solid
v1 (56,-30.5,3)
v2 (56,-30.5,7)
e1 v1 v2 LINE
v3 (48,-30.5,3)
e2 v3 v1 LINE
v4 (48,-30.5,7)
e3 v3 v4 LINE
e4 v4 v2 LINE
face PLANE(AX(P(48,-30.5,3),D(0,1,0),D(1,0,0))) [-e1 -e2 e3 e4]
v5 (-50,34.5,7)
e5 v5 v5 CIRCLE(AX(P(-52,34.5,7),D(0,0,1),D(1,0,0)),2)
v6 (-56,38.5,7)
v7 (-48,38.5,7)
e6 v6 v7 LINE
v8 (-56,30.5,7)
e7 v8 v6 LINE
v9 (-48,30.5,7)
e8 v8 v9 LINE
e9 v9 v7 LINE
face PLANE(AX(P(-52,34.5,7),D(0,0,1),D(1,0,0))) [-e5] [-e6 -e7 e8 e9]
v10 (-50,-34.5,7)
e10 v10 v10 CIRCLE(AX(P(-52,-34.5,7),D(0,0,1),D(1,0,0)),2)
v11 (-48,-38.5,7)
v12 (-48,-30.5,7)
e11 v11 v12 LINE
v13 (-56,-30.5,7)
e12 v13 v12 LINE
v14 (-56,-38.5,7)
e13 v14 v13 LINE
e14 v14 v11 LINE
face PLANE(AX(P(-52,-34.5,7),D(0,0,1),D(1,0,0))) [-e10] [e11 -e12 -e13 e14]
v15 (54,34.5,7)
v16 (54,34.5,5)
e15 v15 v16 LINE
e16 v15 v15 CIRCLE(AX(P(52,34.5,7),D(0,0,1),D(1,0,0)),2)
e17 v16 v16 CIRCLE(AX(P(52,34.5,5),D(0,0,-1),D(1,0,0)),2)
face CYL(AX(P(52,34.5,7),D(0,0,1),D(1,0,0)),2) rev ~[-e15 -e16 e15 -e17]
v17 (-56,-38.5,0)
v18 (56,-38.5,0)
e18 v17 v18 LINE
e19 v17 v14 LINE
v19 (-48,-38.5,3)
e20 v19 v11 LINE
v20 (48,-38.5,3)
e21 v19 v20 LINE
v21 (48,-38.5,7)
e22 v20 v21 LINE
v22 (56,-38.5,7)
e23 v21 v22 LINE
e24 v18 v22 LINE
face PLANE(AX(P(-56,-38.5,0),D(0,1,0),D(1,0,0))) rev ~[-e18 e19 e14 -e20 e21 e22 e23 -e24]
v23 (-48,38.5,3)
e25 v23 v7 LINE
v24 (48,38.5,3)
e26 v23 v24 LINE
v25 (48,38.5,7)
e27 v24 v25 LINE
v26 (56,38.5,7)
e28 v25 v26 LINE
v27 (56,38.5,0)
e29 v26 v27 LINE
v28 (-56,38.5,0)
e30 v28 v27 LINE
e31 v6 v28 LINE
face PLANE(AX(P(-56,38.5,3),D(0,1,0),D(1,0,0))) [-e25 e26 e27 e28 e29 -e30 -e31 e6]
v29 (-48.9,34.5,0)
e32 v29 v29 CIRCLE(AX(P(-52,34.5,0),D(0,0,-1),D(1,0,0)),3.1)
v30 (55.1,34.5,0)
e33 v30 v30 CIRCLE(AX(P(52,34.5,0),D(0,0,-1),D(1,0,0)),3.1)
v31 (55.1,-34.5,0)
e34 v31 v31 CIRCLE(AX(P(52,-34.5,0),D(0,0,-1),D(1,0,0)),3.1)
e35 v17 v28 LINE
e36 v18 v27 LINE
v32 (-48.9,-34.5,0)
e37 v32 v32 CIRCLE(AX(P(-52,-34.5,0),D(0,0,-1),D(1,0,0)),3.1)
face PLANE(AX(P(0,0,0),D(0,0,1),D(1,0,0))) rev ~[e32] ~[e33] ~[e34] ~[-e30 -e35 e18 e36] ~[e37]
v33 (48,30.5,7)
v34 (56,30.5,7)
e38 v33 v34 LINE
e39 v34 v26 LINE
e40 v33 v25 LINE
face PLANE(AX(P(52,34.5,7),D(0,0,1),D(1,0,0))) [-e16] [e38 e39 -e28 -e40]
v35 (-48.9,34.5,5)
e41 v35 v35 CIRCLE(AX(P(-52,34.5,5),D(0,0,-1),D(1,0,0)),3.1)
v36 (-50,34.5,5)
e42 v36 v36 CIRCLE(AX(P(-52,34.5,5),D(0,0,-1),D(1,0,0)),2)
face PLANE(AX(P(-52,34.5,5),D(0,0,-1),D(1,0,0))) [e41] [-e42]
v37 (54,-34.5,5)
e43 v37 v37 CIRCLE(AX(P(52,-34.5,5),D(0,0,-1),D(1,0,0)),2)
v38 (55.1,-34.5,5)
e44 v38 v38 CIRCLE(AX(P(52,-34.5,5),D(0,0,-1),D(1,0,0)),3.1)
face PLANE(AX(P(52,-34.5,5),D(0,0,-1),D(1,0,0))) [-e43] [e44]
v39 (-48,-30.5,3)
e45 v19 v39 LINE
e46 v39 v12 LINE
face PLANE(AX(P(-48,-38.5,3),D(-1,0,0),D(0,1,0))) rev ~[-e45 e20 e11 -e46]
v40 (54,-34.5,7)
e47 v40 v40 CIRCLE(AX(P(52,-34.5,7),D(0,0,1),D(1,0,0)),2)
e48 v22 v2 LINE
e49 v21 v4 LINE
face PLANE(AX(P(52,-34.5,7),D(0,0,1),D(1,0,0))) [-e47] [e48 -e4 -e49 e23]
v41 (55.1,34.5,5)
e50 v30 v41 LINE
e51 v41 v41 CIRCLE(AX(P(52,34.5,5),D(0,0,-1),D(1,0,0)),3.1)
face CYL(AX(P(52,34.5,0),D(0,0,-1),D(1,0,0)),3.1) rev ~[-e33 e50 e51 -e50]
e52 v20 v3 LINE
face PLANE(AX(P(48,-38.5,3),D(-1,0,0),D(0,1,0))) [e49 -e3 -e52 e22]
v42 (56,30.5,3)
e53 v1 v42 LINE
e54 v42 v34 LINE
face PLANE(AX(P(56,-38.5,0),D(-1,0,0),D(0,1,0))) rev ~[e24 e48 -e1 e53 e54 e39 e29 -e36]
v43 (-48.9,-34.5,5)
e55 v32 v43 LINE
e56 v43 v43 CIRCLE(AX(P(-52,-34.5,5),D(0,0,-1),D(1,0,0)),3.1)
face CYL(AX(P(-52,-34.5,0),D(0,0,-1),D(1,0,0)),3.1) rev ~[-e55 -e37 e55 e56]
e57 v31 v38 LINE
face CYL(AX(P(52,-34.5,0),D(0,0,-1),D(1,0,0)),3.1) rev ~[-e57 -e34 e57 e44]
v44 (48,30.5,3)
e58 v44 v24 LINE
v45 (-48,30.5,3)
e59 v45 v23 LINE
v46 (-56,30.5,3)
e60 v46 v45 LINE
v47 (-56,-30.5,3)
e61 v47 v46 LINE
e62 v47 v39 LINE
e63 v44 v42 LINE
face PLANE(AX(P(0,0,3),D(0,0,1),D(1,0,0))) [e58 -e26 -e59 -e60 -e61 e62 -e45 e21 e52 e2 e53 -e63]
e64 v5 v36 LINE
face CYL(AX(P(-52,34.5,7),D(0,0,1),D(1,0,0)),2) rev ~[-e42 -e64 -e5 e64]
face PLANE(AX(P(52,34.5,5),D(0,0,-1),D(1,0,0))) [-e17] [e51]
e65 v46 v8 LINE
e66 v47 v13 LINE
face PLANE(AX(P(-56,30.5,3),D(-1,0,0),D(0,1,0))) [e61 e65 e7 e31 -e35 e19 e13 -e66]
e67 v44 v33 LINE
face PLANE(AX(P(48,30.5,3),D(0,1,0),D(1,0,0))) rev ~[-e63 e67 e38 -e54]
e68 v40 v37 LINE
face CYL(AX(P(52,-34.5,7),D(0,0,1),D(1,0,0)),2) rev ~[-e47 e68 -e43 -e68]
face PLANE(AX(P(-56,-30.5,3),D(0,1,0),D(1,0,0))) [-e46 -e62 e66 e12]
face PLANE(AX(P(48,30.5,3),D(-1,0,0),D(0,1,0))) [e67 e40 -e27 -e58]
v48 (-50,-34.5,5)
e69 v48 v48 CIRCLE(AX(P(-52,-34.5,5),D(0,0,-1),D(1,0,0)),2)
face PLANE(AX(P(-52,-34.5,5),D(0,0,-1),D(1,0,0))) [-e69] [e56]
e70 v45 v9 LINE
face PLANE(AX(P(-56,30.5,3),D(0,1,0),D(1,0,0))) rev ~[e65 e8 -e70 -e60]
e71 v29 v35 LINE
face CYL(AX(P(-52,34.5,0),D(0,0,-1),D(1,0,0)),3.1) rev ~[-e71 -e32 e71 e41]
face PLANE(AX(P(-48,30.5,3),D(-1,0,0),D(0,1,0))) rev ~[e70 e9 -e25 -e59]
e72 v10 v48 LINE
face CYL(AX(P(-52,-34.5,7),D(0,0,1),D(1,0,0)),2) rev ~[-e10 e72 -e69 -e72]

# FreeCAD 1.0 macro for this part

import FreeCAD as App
import Part
import Sketcher

doc = App.newDocument("Part")
body = doc.addObject("PartDesign::Body", "Body")

# Sketch on XY plane
sketch1 = doc.addObject("Sketcher::SketchObject", "Sketch")
body.addObject(sketch1)
sketch1.AttachmentSupport = (doc.XY_Plane, [""])
sketch1.MapMode = "FlatFace"
sketch1.addGeometry(Part.LineSegment(App.Vector(-56, 38, 0), App.Vector(-56, -38, 0)), False)
sketch1.addGeometry(Part.LineSegment(App.Vector(-56, -38, 0), App.Vector(56, -38, 0)), False)
sketch1.addGeometry(Part.LineSegment(App.Vector(56, -38, 0), App.Vector(56, 38, 0)), False)
sketch1.addGeometry(Part.LineSegment(App.Vector(56, 38, 0), App.Vector(-56, 38, 0)), False)
sketch1.addConstraint(Sketcher.Constraint("Coincident", 0, 2, 1, 1))
sketch1.addConstraint(Sketcher.Constraint("Coincident", 1, 2, 2, 1))
sketch1.addConstraint(Sketcher.Constraint("Coincident", 2, 2, 3, 1))
sketch1.addConstraint(Sketcher.Constraint("Coincident", 3, 2, 0, 1))
sketch1.addConstraint(Sketcher.Constraint("Vertical", 0))
sketch1.addConstraint(Sketcher.Constraint("Horizontal", 1))
sketch1.addConstraint(Sketcher.Constraint("Vertical", 2))
sketch1.addConstraint(Sketcher.Constraint("Horizontal", 3))
sketch1.addConstraint(Sketcher.Constraint("Symmetric", 0, 2, 2, 2, -1, 1))
sketch1.addConstraint(Sketcher.Constraint("DistanceX", 1, 1, 1, 2, 112.0))
sketch1.addConstraint(Sketcher.Constraint("DistanceY", 0, 2, 0, 1, 77.0))
pad1 = doc.addObject("PartDesign::Pad", "Pad")
body.addObject(pad1)
pad1.Profile = sketch1
pad1.Length = 3

# Sketch on XY plane
sketch2 = doc.addObject("Sketcher::SketchObject", "Sketch001")
body.addObject(sketch2)
sketch2.AttachmentSupport = (doc.XY_Plane, [""])
sketch2.MapMode = "FlatFace"
sketch2.AttachmentOffset = App.Placement(App.Vector(0, 0, 3), App.Rotation())
sketch2.addGeometry(Part.LineSegment(App.Vector(-56, 38, 0), App.Vector(-56, 30, 0)), False)
sketch2.addGeometry(Part.LineSegment(App.Vector(-56, 30, 0), App.Vector(-48, 30, 0)), False)
sketch2.addGeometry(Part.LineSegment(App.Vector(-48, 30, 0), App.Vector(-48, 38, 0)), False)
sketch2.addGeometry(Part.LineSegment(App.Vector(-48, 38, 0), App.Vector(-56, 38, 0)), False)
sketch2.addGeometry(Part.LineSegment(App.Vector(-56, -30, 0), App.Vector(-56, -38, 0)), False)
sketch2.addGeometry(Part.LineSegment(App.Vector(-56, -38, 0), App.Vector(-48, -38, 0)), False)
sketch2.addGeometry(Part.LineSegment(App.Vector(-48, -38, 0), App.Vector(-48, -30, 0)), False)
sketch2.addGeometry(Part.LineSegment(App.Vector(-48, -30, 0), App.Vector(-56, -30, 0)), False)
sketch2.addGeometry(Part.LineSegment(App.Vector(48, -30, 0), App.Vector(48, -38, 0)), False)
sketch2.addGeometry(Part.LineSegment(App.Vector(48, -38, 0), App.Vector(56, -38, 0)), False)
sketch2.addGeometry(Part.LineSegment(App.Vector(56, -38, 0), App.Vector(56, -30, 0)), False)
sketch2.addGeometry(Part.LineSegment(App.Vector(56, -30, 0), App.Vector(48, -30, 0)), False)
sketch2.addGeometry(Part.LineSegment(App.Vector(48, 38, 0), App.Vector(48, 30, 0)), False)
sketch2.addGeometry(Part.LineSegment(App.Vector(48, 30, 0), App.Vector(56, 30, 0)), False)
sketch2.addGeometry(Part.LineSegment(App.Vector(56, 30, 0), App.Vector(56, 38, 0)), False)
sketch2.addGeometry(Part.LineSegment(App.Vector(56, 38, 0), App.Vector(48, 38, 0)), False)
sketch2.addConstraint(Sketcher.Constraint("Coincident", 0, 2, 1, 1))
sketch2.addConstraint(Sketcher.Constraint("Coincident", 1, 2, 2, 1))
sketch2.addConstraint(Sketcher.Constraint("Coincident", 2, 2, 3, 1))
sketch2.addConstraint(Sketcher.Constraint("Coincident", 3, 2, 0, 1))
sketch2.addConstraint(Sketcher.Constraint("Coincident", 4, 2, 5, 1))
sketch2.addConstraint(Sketcher.Constraint("Coincident", 5, 2, 6, 1))
sketch2.addConstraint(Sketcher.Constraint("Coincident", 6, 2, 7, 1))
sketch2.addConstraint(Sketcher.Constraint("Coincident", 7, 2, 4, 1))
sketch2.addConstraint(Sketcher.Constraint("Coincident", 8, 2, 9, 1))
sketch2.addConstraint(Sketcher.Constraint("Coincident", 9, 2, 10, 1))
sketch2.addConstraint(Sketcher.Constraint("Coincident", 10, 2, 11, 1))
sketch2.addConstraint(Sketcher.Constraint("Coincident", 11, 2, 8, 1))
sketch2.addConstraint(Sketcher.Constraint("Coincident", 12, 2, 13, 1))
sketch2.addConstraint(Sketcher.Constraint("Coincident", 13, 2, 14, 1))
sketch2.addConstraint(Sketcher.Constraint("Coincident", 14, 2, 15, 1))
sketch2.addConstraint(Sketcher.Constraint("Coincident", 15, 2, 12, 1))
sketch2.addConstraint(Sketcher.Constraint("Vertical", 0))
sketch2.addConstraint(Sketcher.Constraint("Horizontal", 1))
sketch2.addConstraint(Sketcher.Constraint("Vertical", 2))
sketch2.addConstraint(Sketcher.Constraint("Horizontal", 3))
sketch2.addConstraint(Sketcher.Constraint("Vertical", 4))
sketch2.addConstraint(Sketcher.Constraint("Horizontal", 5))
sketch2.addConstraint(Sketcher.Constraint("Vertical", 6))
sketch2.addConstraint(Sketcher.Constraint("Horizontal", 7))
sketch2.addConstraint(Sketcher.Constraint("Vertical", 8))
sketch2.addConstraint(Sketcher.Constraint("Horizontal", 9))
sketch2.addConstraint(Sketcher.Constraint("Vertical", 10))
sketch2.addConstraint(Sketcher.Constraint("Horizontal", 11))
sketch2.addConstraint(Sketcher.Constraint("Vertical", 12))
sketch2.addConstraint(Sketcher.Constraint("Horizontal", 13))
sketch2.addConstraint(Sketcher.Constraint("Vertical", 14))
sketch2.addConstraint(Sketcher.Constraint("Horizontal", 15))
sketch2.addConstraint(Sketcher.Constraint("Symmetric", 2, 2, 8, 2, -1, 1))
sketch2.addConstraint(Sketcher.Constraint("Symmetric", 0, 2, 10, 2, -1, 1))
sketch2.addConstraint(Sketcher.Constraint("Symmetric", 6, 2, 12, 2, -1, 1))
sketch2.addConstraint(Sketcher.Constraint("Symmetric", 4, 2, 14, 2, -1, 1))
sketch2.addConstraint(Sketcher.Constraint("Symmetric", 5, 2, 8, 2, -2))
sketch2.addConstraint(Sketcher.Constraint("Symmetric", 7, 2, 10, 2, -2))
sketch2.addConstraint(Sketcher.Constraint("Equal", 15, 0))
sketch2.addConstraint(Sketcher.Constraint("DistanceX", 1, 1, 1, 2, 8.0))
sketch2.addConstraint(Sketcher.Constraint("DistanceX", 0, 2, -1, 1, 56.0))
sketch2.addConstraint(Sketcher.Constraint("DistanceY", 4, 2, 0, 2, 69.0))
pad2 = doc.addObject("PartDesign::Pad", "Pad001")
body.addObject(pad2)
pad2.Profile = sketch2
pad2.Length = 4

# Sketch on XY plane
sketch3 = doc.addObject("Sketcher::SketchObject", "Sketch002")
body.addObject(sketch3)
sketch3.AttachmentSupport = (doc.XY_Plane, [""])
sketch3.MapMode = "FlatFace"
sketch3.AttachmentOffset = App.Placement(App.Vector(0, 0, 7), App.Rotation())
sketch3.addGeometry(Part.Circle(App.Vector(-52, 34.5, 0), App.Vector(0, 0, 1), 2), False)
sketch3.addGeometry(Part.Circle(App.Vector(52, 34.5, 0), App.Vector(0, 0, 1), 2), False)
sketch3.addGeometry(Part.Circle(App.Vector(-52, -34.5, 0), App.Vector(0, 0, 1), 2), False)
sketch3.addGeometry(Part.Circle(App.Vector(52, -34.5, 0), App.Vector(0, 0, 1), 2), False)
sketch3.addConstraint(Sketcher.Constraint("Equal", 0, 1))
sketch3.addConstraint(Sketcher.Constraint("Equal", 1, 2))
sketch3.addConstraint(Sketcher.Constraint("Equal", 2, 3))
sketch3.addConstraint(Sketcher.Constraint("Symmetric", 1, 3, 2, 3, -1, 1))
sketch3.addConstraint(Sketcher.Constraint("Symmetric", 0, 3, 3, 3, -1, 1))
sketch3.addConstraint(Sketcher.Constraint("Symmetric", 0, 3, 1, 3, -2))
sketch3.addConstraint(Sketcher.Constraint("Diameter", 0, 4.0))
sketch3.addConstraint(Sketcher.Constraint("DistanceX", 0, 3, -1, 1, 52.0))
sketch3.addConstraint(Sketcher.Constraint("DistanceY", 2, 3, 0, 3, 69.0))
pocket1 = doc.addObject("PartDesign::Pocket", "Pocket")
body.addObject(pocket1)
pocket1.Profile = sketch3
pocket1.Length = 25.4

# Sketch on XY plane
sketch4 = doc.addObject("Sketcher::SketchObject", "Sketch003")
body.addObject(sketch4)
sketch4.AttachmentSupport = (doc.XY_Plane, [""])
sketch4.MapMode = "FlatFace"
sketch4.addGeometry(Part.Circle(App.Vector(-52, -34.5, 0), App.Vector(0, 0, 1), 3.1), False)
sketch4.addGeometry(Part.Circle(App.Vector(-52, -34.5, 0), App.Vector(0, 0, 1), 2), False)
sketch4.addGeometry(Part.Circle(App.Vector(52, -34.5, 0), App.Vector(0, 0, 1), 3.1), False)
sketch4.addGeometry(Part.Circle(App.Vector(52, -34.5, 0), App.Vector(0, 0, 1), 2), False)
sketch4.addGeometry(Part.Circle(App.Vector(52, 34.5, 0), App.Vector(0, 0, 1), 3.1), False)
sketch4.addGeometry(Part.Circle(App.Vector(52, 34.5, 0), App.Vector(0, 0, 1), 2), False)
sketch4.addGeometry(Part.Circle(App.Vector(-52, 34.5, 0), App.Vector(0, 0, 1), 3.1), False)
sketch4.addGeometry(Part.Circle(App.Vector(-52, 34.5, 0), App.Vector(0, 0, 1), 2), False)
sketch4.addConstraint(Sketcher.Constraint("Coincident", 1, 3, 0, 3))
sketch4.addConstraint(Sketcher.Constraint("Coincident", 3, 3, 2, 3))
sketch4.addConstraint(Sketcher.Constraint("Coincident", 5, 3, 4, 3))
sketch4.addConstraint(Sketcher.Constraint("Coincident", 7, 3, 6, 3))
sketch4.addConstraint(Sketcher.Constraint("Equal", 0, 2))
sketch4.addConstraint(Sketcher.Constraint("Equal", 1, 3))
sketch4.addConstraint(Sketcher.Constraint("Equal", 2, 4))
sketch4.addConstraint(Sketcher.Constraint("Equal", 3, 5))
sketch4.addConstraint(Sketcher.Constraint("Equal", 4, 6))
sketch4.addConstraint(Sketcher.Constraint("Equal", 5, 7))
sketch4.addConstraint(Sketcher.Constraint("Symmetric", 0, 3, 4, 3, -1, 1))
sketch4.addConstraint(Sketcher.Constraint("Symmetric", 2, 3, 6, 3, -1, 1))
sketch4.addConstraint(Sketcher.Constraint("Symmetric", 0, 3, 2, 3, -2))
sketch4.addConstraint(Sketcher.Constraint("Diameter", 1, 4.0))
sketch4.addConstraint(Sketcher.Constraint("Diameter", 0, 6.2))
sketch4.addConstraint(Sketcher.Constraint("DistanceX", 0, 3, -1, 1, 52.0))
sketch4.addConstraint(Sketcher.Constraint("DistanceY", 2, 3, 4, 3, 69.0))
pocket2 = doc.addObject("PartDesign::Pocket", "Pocket001")
body.addObject(pocket2)
pocket2.Profile = sketch4
pocket2.Length = 5
pocket2.Reversed = True

doc.recompute()
